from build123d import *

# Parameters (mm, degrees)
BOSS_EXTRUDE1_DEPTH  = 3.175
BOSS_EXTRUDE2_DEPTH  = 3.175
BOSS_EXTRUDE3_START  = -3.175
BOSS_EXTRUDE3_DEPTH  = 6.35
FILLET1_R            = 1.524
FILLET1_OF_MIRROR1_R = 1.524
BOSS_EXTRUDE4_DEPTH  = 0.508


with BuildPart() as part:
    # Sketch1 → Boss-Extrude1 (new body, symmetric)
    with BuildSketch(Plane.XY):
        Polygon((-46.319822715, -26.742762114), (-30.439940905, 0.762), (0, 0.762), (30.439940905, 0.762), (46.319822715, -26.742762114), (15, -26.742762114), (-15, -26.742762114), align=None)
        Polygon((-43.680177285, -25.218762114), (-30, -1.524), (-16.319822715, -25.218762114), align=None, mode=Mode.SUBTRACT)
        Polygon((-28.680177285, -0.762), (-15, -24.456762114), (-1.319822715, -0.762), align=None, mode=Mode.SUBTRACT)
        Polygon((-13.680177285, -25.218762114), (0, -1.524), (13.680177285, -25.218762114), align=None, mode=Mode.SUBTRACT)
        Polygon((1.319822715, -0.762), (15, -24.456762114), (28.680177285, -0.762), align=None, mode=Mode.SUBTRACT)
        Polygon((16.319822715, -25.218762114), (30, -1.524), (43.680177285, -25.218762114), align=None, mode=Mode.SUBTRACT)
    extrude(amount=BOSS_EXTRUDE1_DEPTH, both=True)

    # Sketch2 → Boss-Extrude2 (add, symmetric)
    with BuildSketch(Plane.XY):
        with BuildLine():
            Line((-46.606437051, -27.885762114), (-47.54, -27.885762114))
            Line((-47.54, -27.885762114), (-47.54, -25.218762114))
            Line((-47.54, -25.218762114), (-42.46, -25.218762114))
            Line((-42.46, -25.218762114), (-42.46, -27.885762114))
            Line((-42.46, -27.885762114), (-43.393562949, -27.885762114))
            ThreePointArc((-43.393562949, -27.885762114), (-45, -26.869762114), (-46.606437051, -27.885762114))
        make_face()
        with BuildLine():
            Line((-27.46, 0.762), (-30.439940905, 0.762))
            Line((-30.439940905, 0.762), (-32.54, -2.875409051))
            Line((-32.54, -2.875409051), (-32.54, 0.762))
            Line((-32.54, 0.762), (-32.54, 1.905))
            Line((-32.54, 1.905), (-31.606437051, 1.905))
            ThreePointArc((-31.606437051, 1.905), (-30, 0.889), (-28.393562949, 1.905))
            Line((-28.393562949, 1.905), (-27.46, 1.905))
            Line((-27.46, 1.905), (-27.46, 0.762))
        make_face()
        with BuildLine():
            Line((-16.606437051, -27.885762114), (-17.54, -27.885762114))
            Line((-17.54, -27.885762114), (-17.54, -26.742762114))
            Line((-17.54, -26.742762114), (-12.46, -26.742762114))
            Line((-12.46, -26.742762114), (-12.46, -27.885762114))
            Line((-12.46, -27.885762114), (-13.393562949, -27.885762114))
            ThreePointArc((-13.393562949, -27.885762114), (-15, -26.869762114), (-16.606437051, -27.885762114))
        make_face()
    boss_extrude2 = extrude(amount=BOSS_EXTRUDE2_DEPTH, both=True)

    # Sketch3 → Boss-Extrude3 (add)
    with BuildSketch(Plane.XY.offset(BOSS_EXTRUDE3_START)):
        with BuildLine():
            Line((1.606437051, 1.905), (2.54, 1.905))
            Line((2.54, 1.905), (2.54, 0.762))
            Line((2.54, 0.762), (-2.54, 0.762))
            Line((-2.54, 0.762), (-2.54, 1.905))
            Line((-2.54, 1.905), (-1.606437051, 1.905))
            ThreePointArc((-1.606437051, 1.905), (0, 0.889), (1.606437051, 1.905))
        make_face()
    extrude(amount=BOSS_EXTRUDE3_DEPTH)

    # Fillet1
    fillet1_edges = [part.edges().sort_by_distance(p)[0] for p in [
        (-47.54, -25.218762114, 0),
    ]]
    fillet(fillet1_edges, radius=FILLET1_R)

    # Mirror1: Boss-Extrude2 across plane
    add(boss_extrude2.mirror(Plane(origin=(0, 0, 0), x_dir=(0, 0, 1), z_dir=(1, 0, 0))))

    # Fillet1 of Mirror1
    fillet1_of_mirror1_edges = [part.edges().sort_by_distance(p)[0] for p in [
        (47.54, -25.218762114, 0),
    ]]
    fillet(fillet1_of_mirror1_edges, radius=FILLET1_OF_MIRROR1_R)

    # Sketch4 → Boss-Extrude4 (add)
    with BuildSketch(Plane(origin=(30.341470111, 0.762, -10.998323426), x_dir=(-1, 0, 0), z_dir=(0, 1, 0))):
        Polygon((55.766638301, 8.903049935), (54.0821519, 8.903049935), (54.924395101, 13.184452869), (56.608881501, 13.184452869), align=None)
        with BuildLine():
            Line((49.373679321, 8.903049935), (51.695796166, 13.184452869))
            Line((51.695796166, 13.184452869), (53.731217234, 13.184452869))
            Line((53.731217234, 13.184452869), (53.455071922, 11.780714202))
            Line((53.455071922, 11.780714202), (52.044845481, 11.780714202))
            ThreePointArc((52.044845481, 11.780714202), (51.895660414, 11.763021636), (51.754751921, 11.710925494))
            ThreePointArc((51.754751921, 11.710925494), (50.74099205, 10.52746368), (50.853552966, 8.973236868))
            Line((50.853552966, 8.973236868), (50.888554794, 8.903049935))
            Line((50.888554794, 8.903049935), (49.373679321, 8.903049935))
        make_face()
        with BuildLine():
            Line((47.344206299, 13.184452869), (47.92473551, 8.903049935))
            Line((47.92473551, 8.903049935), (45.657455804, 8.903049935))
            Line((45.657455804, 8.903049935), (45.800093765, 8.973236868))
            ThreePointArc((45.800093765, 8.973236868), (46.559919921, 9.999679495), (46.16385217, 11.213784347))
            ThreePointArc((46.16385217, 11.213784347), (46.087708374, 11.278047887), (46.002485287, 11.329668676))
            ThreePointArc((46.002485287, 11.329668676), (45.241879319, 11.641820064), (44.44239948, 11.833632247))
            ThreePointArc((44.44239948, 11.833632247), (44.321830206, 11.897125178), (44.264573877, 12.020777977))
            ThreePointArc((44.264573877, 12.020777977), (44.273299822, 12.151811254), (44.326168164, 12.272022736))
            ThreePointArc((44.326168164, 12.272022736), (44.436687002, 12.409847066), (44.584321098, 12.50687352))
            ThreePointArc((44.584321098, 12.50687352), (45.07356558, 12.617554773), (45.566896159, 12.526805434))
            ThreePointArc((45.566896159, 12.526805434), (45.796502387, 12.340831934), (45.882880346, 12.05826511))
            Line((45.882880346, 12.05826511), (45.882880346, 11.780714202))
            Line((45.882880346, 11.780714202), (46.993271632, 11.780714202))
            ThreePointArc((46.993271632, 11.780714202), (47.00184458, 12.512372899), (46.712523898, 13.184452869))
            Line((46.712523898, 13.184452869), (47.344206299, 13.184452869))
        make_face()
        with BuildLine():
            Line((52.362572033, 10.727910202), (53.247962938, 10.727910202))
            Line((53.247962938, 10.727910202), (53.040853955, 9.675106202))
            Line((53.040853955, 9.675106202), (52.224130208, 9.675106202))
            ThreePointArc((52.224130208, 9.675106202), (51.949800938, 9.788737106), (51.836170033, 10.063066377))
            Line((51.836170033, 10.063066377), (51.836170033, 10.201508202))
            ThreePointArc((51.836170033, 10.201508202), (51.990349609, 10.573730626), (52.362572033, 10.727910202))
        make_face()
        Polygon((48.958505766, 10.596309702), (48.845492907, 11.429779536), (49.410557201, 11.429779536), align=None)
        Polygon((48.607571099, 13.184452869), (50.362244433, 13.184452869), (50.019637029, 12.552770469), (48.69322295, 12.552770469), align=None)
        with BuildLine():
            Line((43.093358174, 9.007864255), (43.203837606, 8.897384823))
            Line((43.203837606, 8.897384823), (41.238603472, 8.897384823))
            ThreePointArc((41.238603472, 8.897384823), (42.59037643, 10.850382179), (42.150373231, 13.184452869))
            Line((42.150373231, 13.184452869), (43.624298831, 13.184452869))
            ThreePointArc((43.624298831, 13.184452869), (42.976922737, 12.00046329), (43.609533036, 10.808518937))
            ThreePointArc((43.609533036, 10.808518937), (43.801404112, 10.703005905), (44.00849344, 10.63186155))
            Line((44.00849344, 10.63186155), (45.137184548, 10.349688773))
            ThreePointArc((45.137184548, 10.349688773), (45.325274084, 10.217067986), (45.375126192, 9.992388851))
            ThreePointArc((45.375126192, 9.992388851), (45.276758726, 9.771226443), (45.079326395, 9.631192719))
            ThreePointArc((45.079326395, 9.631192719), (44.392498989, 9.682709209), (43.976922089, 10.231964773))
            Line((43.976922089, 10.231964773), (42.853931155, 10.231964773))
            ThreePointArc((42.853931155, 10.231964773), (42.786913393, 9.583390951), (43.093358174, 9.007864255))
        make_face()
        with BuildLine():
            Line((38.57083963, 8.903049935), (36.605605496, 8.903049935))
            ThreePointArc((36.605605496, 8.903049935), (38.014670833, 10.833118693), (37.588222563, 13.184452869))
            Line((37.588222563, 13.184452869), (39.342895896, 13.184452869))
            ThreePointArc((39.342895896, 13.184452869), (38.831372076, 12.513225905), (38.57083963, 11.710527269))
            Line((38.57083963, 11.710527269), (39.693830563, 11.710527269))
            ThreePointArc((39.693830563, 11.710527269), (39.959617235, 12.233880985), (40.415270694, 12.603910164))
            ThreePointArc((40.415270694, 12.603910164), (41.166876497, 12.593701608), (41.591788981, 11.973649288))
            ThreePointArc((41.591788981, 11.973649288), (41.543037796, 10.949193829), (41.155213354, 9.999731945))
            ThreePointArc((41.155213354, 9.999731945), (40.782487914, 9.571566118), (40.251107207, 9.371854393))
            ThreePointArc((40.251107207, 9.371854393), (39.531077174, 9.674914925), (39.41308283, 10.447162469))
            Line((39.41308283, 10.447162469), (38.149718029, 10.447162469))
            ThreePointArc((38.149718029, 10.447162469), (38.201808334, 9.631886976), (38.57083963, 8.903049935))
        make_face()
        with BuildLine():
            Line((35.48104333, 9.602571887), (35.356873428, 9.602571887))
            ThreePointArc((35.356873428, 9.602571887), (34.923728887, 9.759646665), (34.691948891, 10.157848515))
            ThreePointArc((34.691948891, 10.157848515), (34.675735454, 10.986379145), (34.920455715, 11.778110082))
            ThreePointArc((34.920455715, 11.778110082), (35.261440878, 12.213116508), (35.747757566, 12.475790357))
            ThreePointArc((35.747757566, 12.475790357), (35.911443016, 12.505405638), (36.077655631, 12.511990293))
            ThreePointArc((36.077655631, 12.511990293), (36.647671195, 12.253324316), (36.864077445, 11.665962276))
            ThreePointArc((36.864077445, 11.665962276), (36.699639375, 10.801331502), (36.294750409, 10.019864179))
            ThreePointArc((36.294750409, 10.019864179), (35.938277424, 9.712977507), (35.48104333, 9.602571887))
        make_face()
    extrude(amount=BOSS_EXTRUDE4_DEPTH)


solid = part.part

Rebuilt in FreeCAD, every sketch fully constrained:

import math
import FreeCAD as App
import Part
import Sketcher
Q = App.Units.Quantity


def edges_at(feature, points):
    """Names of the edges that pass closest to the given points."""
    edges = feature.Shape.Edges
    near = lambda p: min(range(len(edges)), key=lambda i: edges[i].distToShape(Part.Vertex(*p))[0])
    return sorted({f"Edge{near(p) + 1}" for p in points})

doc = App.newDocument("Part")
body = doc.addObject("PartDesign::Body", "Body")

# Sketch on XY plane
sketch1 = body.newObject("Sketcher::SketchObject", "Sketch")
sketch1.AttachmentSupport = (doc.getObject("XY_Plane"), [""])
sketch1.MapMode = "FlatFace"
sketch1.addGeometry([
    Part.LineSegment(App.Vector(-30.439941, 0.762, 0), App.Vector(-46.319823, -26.742762, 0)),  # 0
    Part.LineSegment(App.Vector(-46.319823, -26.742762, 0), App.Vector(46.319823, -26.742762, 0)),  # 1
    Part.LineSegment(App.Vector(46.319823, -26.742762, 0), App.Vector(30.439941, 0.762, 0)),  # 2
    Part.LineSegment(App.Vector(30.439941, 0.762, 0), App.Vector(-30.439941, 0.762, 0)),  # 3
    Part.LineSegment(App.Vector(16.319823, -25.218762, 0), App.Vector(30, -1.524, 0)),  # 4
    Part.LineSegment(App.Vector(30, -1.524, 0), App.Vector(43.680177, -25.218762, 0)),  # 5
    Part.LineSegment(App.Vector(43.680177, -25.218762, 0), App.Vector(16.319823, -25.218762, 0)),  # 6
    Part.LineSegment(App.Vector(-13.680177, -25.218762, 0), App.Vector(0, -1.524, 0)),  # 7
    Part.LineSegment(App.Vector(0, -1.524, 0), App.Vector(13.680177, -25.218762, 0)),  # 8
    Part.LineSegment(App.Vector(13.680177, -25.218762, 0), App.Vector(-13.680177, -25.218762, 0)),  # 9
    Part.LineSegment(App.Vector(-43.680177, -25.218762, 0), App.Vector(-30, -1.524, 0)),  # 10
    Part.LineSegment(App.Vector(-30, -1.524, 0), App.Vector(-16.319823, -25.218762, 0)),  # 11
    Part.LineSegment(App.Vector(-16.319823, -25.218762, 0), App.Vector(-43.680177, -25.218762, 0)),  # 12
    Part.LineSegment(App.Vector(1.319823, -0.762, 0), App.Vector(28.680177, -0.762, 0)),  # 13
    Part.LineSegment(App.Vector(28.680177, -0.762, 0), App.Vector(15, -24.456762, 0)),  # 14
    Part.LineSegment(App.Vector(15, -24.456762, 0), App.Vector(1.319823, -0.762, 0)),  # 15
    Part.LineSegment(App.Vector(-28.680177, -0.762, 0), App.Vector(-1.319823, -0.762, 0)),  # 16
    Part.LineSegment(App.Vector(-1.319823, -0.762, 0), App.Vector(-15, -24.456762, 0)),  # 17
    Part.LineSegment(App.Vector(-15, -24.456762, 0), App.Vector(-28.680177, -0.762, 0)),  # 18
], False)
sketch1.addConstraint([
    Sketcher.Constraint("Coincident", 0, 2, 1, 1),
    Sketcher.Constraint("Coincident", 1, 2, 2, 1),
    Sketcher.Constraint("Coincident", 2, 2, 3, 1),
    Sketcher.Constraint("Coincident", 3, 2, 0, 1),
    Sketcher.Constraint("Coincident", 4, 2, 5, 1),
    Sketcher.Constraint("Coincident", 5, 2, 6, 1),
    Sketcher.Constraint("Coincident", 6, 2, 4, 1),
    Sketcher.Constraint("Coincident", 7, 2, 8, 1),
    Sketcher.Constraint("Coincident", 8, 2, 9, 1),
    Sketcher.Constraint("Coincident", 9, 2, 7, 1),
    Sketcher.Constraint("Coincident", 10, 2, 11, 1),
    Sketcher.Constraint("Coincident", 11, 2, 12, 1),
    Sketcher.Constraint("Coincident", 12, 2, 10, 1),
    Sketcher.Constraint("Coincident", 13, 2, 14, 1),
    Sketcher.Constraint("Coincident", 14, 2, 15, 1),
    Sketcher.Constraint("Coincident", 15, 2, 13, 1),
    Sketcher.Constraint("Coincident", 16, 2, 17, 1),
    Sketcher.Constraint("Coincident", 17, 2, 18, 1),
    Sketcher.Constraint("Coincident", 18, 2, 16, 1),
    Sketcher.Constraint("Horizontal", 1),
    Sketcher.Constraint("Horizontal", 3),
    Sketcher.Constraint("Horizontal", 6),
    Sketcher.Constraint("Horizontal", 9),
    Sketcher.Constraint("Horizontal", 12),
    Sketcher.Constraint("Horizontal", 13),
    Sketcher.Constraint("Horizontal", 16),
    Sketcher.Constraint("Symmetric", 4, 2, 10, 2, -2),
    Sketcher.Constraint("Symmetric", 6, 2, 11, 2, -2),
    Sketcher.Constraint("Symmetric", 15, 2, 16, 2, -2),
    Sketcher.Constraint("Symmetric", 14, 2, 17, 2, -2),
    Sketcher.Constraint("PointOnObject", 7, 2, -2),
    Sketcher.Constraint("Parallel", 0, 4),
    Sketcher.Constraint("Parallel", 2, 5),
    Sketcher.Constraint("Parallel", 4, 7),
    Sketcher.Constraint("Parallel", 5, 8),
    Sketcher.Constraint("Parallel", 7, 10),
    Sketcher.Constraint("Parallel", 8, 11),
    Sketcher.Constraint("Parallel", 10, 14),
    Sketcher.Constraint("Parallel", 11, 15),
    Sketcher.Constraint("Parallel", 15, 18),
    Sketcher.Constraint("Horizontal", 4, 2, 7, 2),
    Sketcher.Constraint("Horizontal", 6, 2, 8, 2),
    Sketcher.Constraint("Equal", 12, 13),
    Sketcher.Constraint("Angle", 0, Q("-120 deg")),
    Sketcher.Constraint("DistanceY", -1, 1, 2, 2, Q("0.03 in")),
    Sketcher.Constraint("DistanceY", 4, 2, -1, 1, Q("0.06 in")),
    Sketcher.Constraint("DistanceY", 13, 2, -1, 1, Q("0.03 in")),
    Sketcher.Constraint("DistanceY", 1, 2, 5, 2, Q("0.06 in")),
    Sketcher.Constraint("DistanceX", 3, 2, 3, 1, 60.879882),
    Sketcher.Constraint("DistanceX", -1, 1, 4, 2, 30.0),
    Sketcher.Constraint("DistanceX", -1, 1, 14, 2, 15.0),
    Sketcher.Constraint("DistanceX", 0, 2, 5, 2, 90.0),
    Sketcher.Constraint("DistanceX", 6, 2, 1, 2, 30.0),
])
pad1 = body.newObject("PartDesign::Pad", "Pad")
pad1.Profile = sketch1
pad1.Length = Q("0.25 in")
pad1.Midplane = True

# Sketch on XY plane
sketch2 = body.newObject("Sketcher::SketchObject", "Sketch001")
sketch2.AttachmentSupport = (doc.getObject("XY_Plane"), [""])
sketch2.MapMode = "FlatFace"
sketch2.addGeometry([
    Part.LineSegment(App.Vector(-47.54, -27.885762, 0), App.Vector(-46.606437, -27.885762, 0)),  # 0
    Part.ArcOfCircle(Part.Circle(App.Vector(-45, -28.647762, 0), App.Vector(0, 0, 1), 1.778), math.radians(25.376934), math.radians(154.623066)),  # 1
    Part.LineSegment(App.Vector(-43.393563, -27.885762, 0), App.Vector(-42.46, -27.885762, 0)),  # 2
    Part.LineSegment(App.Vector(-42.46, -27.885762, 0), App.Vector(-42.46, -25.218762, 0)),  # 3
    Part.LineSegment(App.Vector(-42.46, -25.218762, 0), App.Vector(-47.54, -25.218762, 0)),  # 4
    Part.LineSegment(App.Vector(-47.54, -25.218762, 0), App.Vector(-47.54, -27.885762, 0)),  # 5
    Part.LineSegment(App.Vector(-30.439941, 0.762, 0), App.Vector(-27.46, 0.762, 0)),  # 6
    Part.LineSegment(App.Vector(-27.46, 0.762, 0), App.Vector(-27.46, 1.905, 0)),  # 7
    Part.LineSegment(App.Vector(-27.46, 1.905, 0), App.Vector(-28.393563, 1.905, 0)),  # 8
    Part.ArcOfCircle(Part.Circle(App.Vector(-30, 2.667, 0), App.Vector(0, 0, 1), 1.778), math.radians(-154.623066), math.radians(-25.376934)),  # 9
    Part.LineSegment(App.Vector(-31.606437, 1.905, 0), App.Vector(-32.54, 1.905, 0)),  # 10
    Part.LineSegment(App.Vector(-32.54, 1.905, 0), App.Vector(-32.54, -2.875409, 0)),  # 11
    Part.LineSegment(App.Vector(-32.54, -2.875409, 0), App.Vector(-30.439941, 0.762, 0)),  # 12
    Part.LineSegment(App.Vector(-17.54, -27.885762, 0), App.Vector(-16.606437, -27.885762, 0)),  # 13
    Part.ArcOfCircle(Part.Circle(App.Vector(-15, -28.647762, 0), App.Vector(0, 0, 1), 1.778), math.radians(25.376934), math.radians(154.623066)),  # 14
    Part.LineSegment(App.Vector(-13.393563, -27.885762, 0), App.Vector(-12.46, -27.885762, 0)),  # 15
    Part.LineSegment(App.Vector(-12.46, -27.885762, 0), App.Vector(-12.46, -26.742762, 0)),  # 16
    Part.LineSegment(App.Vector(-12.46, -26.742762, 0), App.Vector(-17.54, -26.742762, 0)),  # 17
    Part.LineSegment(App.Vector(-17.54, -26.742762, 0), App.Vector(-17.54, -27.885762, 0)),  # 18
], False)
sketch2.addConstraint([
    Sketcher.Constraint("Coincident", 0, 2, 1, 2),
    Sketcher.Constraint("Coincident", 1, 1, 2, 1),
    Sketcher.Constraint("Coincident", 2, 2, 3, 1),
    Sketcher.Constraint("Coincident", 3, 2, 4, 1),
    Sketcher.Constraint("Coincident", 4, 2, 5, 1),
    Sketcher.Constraint("Coincident", 5, 2, 0, 1),
    Sketcher.Constraint("Coincident", 6, 2, 7, 1),
    Sketcher.Constraint("Coincident", 7, 2, 8, 1),
    Sketcher.Constraint("Coincident", 8, 2, 9, 2),
    Sketcher.Constraint("Coincident", 9, 1, 10, 1),
    Sketcher.Constraint("Coincident", 10, 2, 11, 1),
    Sketcher.Constraint("Coincident", 11, 2, 12, 1),
    Sketcher.Constraint("Coincident", 12, 2, 6, 1),
    Sketcher.Constraint("Coincident", 13, 2, 14, 2),
    Sketcher.Constraint("Coincident", 14, 1, 15, 1),
    Sketcher.Constraint("Coincident", 15, 2, 16, 1),
    Sketcher.Constraint("Coincident", 16, 2, 17, 1),
    Sketcher.Constraint("Coincident", 17, 2, 18, 1),
    Sketcher.Constraint("Coincident", 18, 2, 13, 1),
    Sketcher.Constraint("Horizontal", 0),
    Sketcher.Constraint("Horizontal", 2),
    Sketcher.Constraint("Vertical", 3),
    Sketcher.Constraint("Horizontal", 4),
    Sketcher.Constraint("Vertical", 5),
    Sketcher.Constraint("Horizontal", 6),
    Sketcher.Constraint("Vertical", 7),
    Sketcher.Constraint("Horizontal", 8),
    Sketcher.Constraint("Horizontal", 10),
    Sketcher.Constraint("Vertical", 11),
    Sketcher.Constraint("Horizontal", 13),
    Sketcher.Constraint("Horizontal", 15),
    Sketcher.Constraint("Vertical", 16),
    Sketcher.Constraint("Horizontal", 17),
    Sketcher.Constraint("Vertical", 18),
    Sketcher.Constraint("Equal", 1, 9),
    Sketcher.Constraint("Equal", 9, 14),
    Sketcher.Constraint("Horizontal", 1, 3, 14, 3),
    Sketcher.Constraint("Horizontal", 0, 2, 1, 1),
    Sketcher.Constraint("Horizontal", 8, 2, 9, 1),
    Sketcher.Constraint("Horizontal", 5, 2, 13, 2),
    Sketcher.Constraint("Horizontal", 13, 2, 14, 1),
    Sketcher.Constraint("Equal", 0, 2),
    Sketcher.Constraint("Equal", 2, 8),
    Sketcher.Constraint("Equal", 8, 10),
    Sketcher.Constraint("Equal", 10, 13),
    Sketcher.Constraint("Equal", 13, 15),
    Sketcher.Constraint("Equal", 7, 16),
    Sketcher.Constraint("Radius", 1, Q("0.07 in")),
    Sketcher.Constraint("DistanceX", 4, 2, 4, 1, Q("0.2 in")),
    Sketcher.Constraint("Angle", 12, Q("60 deg")),
    Sketcher.Constraint("DistanceX", 9, 3, 6, 2, Q("0.1 in")),
    Sketcher.Constraint("DistanceY", 3, 1, 3, 2, Q("0.105 in")),
    Sketcher.Constraint("DistanceY", 7, 1, 7, 2, Q("0.045 in")),
    Sketcher.Constraint("DistanceY", -1, 1, 6, 2, Q("0.03 in")),
    Sketcher.Constraint("DistanceY", 1, 3, 0, 2, Q("0.03 in")),
    Sketcher.Constraint("DistanceX", 6, 1, 6, 2, 2.979941),
    Sketcher.Constraint("DistanceX", 1, 3, -1, 1, 45.0),
    Sketcher.Constraint("DistanceX", 9, 3, -1, 1, 30.0),
    Sketcher.Constraint("DistanceX", 14, 3, -1, 1, 15.0),
    Sketcher.Constraint("DistanceY", 1, 3, -1, 1, 28.647762),
])
pad2 = body.newObject("PartDesign::Pad", "Pad001")
pad2.Profile = sketch2
pad2.Length = Q("0.25 in")
pad2.Midplane = True

# Sketch on XY plane
sketch3 = body.newObject("Sketcher::SketchObject", "Sketch002")
sketch3.AttachmentSupport = (doc.getObject("XY_Plane"), [""])
sketch3.MapMode = "FlatFace"
sketch3.AttachmentOffset = App.Placement(App.Vector(0, 0, -0.125 * 25.4), App.Rotation())
sketch3.addGeometry([
    Part.LineSegment(App.Vector(2.54, 1.905, 0), App.Vector(1.606437, 1.905, 0)),  # 0
    Part.ArcOfCircle(Part.Circle(App.Vector(0, 2.667, 0), App.Vector(0, 0, 1), 1.778), math.radians(-154.623066), math.radians(-25.376934)),  # 1
    Part.LineSegment(App.Vector(-1.606437, 1.905, 0), App.Vector(-2.54, 1.905, 0)),  # 2
    Part.LineSegment(App.Vector(-2.54, 1.905, 0), App.Vector(-2.54, 0.762, 0)),  # 3
    Part.LineSegment(App.Vector(-2.54, 0.762, 0), App.Vector(2.54, 0.762, 0)),  # 4
    Part.LineSegment(App.Vector(2.54, 0.762, 0), App.Vector(2.54, 1.905, 0)),  # 5
], False)
sketch3.addConstraint([
    Sketcher.Constraint("Coincident", 0, 2, 1, 2),
    Sketcher.Constraint("Coincident", 1, 1, 2, 1),
    Sketcher.Constraint("Coincident", 2, 2, 3, 1),
    Sketcher.Constraint("Coincident", 3, 2, 4, 1),
    Sketcher.Constraint("Coincident", 4, 2, 5, 1),
    Sketcher.Constraint("Coincident", 5, 2, 0, 1),
    Sketcher.Constraint("Horizontal", 0),
    Sketcher.Constraint("Horizontal", 2),
    Sketcher.Constraint("Vertical", 3),
    Sketcher.Constraint("Horizontal", 4),
    Sketcher.Constraint("Vertical", 5),
    Sketcher.Constraint("Symmetric", 0, 2, 1, 1, -2),
    Sketcher.Constraint("Equal", 0, 2),
    Sketcher.Constraint("Radius", 1, Q("0.07 in")),
    Sketcher.Constraint("DistanceX", 4, 1, 4, 2, Q("0.2 in")),
    Sketcher.Constraint("DistanceY", 3, 2, 3, 1, Q("0.045 in")),
    Sketcher.Constraint("DistanceY", -1, 1, 3, 2, Q("0.03 in")),
    Sketcher.Constraint("DistanceY", 0, 2, 1, 3, Q("0.03 in")),
])
pad3 = body.newObject("PartDesign::Pad", "Pad002")
pad3.Profile = sketch3
pad3.Length = Q("0.25 in")
doc.recompute()

fillet = body.newObject("PartDesign::Fillet", "Fillet")
fillet.Base = (pad3, edges_at(pad3, [(-47.54, -25.219, 0)]))
fillet.Radius = Q("0.06 in")
doc.recompute()

mirrored = body.newObject("PartDesign::Mirrored", "Mirrored")
mirrored.Originals = [pad2]
mirrored.MirrorPlane = (doc.getObject("YZ_Plane"), [""])
body.Tip = mirrored
doc.recompute()

fillet2 = body.newObject("PartDesign::Fillet", "Fillet001")
fillet2.Base = (mirrored, edges_at(mirrored, [(47.54, -25.219, 0)]))
fillet2.Radius = Q("0.06 in")

# Sketch on XZ plane
sketch4 = body.newObject("Sketcher::SketchObject", "Sketch003")
sketch4.AttachmentSupport = (doc.getObject("XZ_Plane"), [""])
sketch4.MapMode = "FlatFace"
sketch4.AttachmentOffset = App.Placement(App.Vector(0, 0, -0.03 * 25.4), App.Rotation())
sketch4.addGeometry([
    Part.LineSegment(App.Vector(-23.740682, -2.095273, 0), App.Vector(-25.425168, -2.095273, 0)),  # 0
    Part.LineSegment(App.Vector(-25.425168, -2.095273, 0), App.Vector(-26.267411, 2.186129, 0)),  # 1
    Part.LineSegment(App.Vector(-26.267411, 2.186129, 0), App.Vector(-24.582925, 2.186129, 0)),  # 2
    Part.LineSegment(App.Vector(-24.582925, 2.186129, 0), App.Vector(-23.740682, -2.095273, 0)),  # 3
    Part.LineSegment(App.Vector(-21.354326, 2.186129, 0), App.Vector(-19.032209, -2.095273, 0)),  # 4
    Part.LineSegment(App.Vector(-19.032209, -2.095273, 0), App.Vector(-20.547085, -2.095273, 0)),  # 5
    Part.LineSegment(App.Vector(-20.547085, -2.095273, 0), App.Vector(-20.512083, -2.025087, 0)),  # 6
    Part.ArcOfCircle(Part.Circle(App.Vector(-22.344691, -1.111175, 0), App.Vector(0, 0, 1), 2.047849), math.radians(-26.505174), math.radians(62.946445)),  # 7
    Part.ArcOfCircle(Part.Circle(App.Vector(-21.703375, 0.144575, 0), App.Vector(0, 0, 1), 0.637816), math.radians(62.946445), math.radians(90)),  # 8
    Part.LineSegment(App.Vector(-21.703375, 0.782391, 0), App.Vector(-23.113602, 0.782391, 0)),  # 9
    Part.LineSegment(App.Vector(-23.113602, 0.782391, 0), App.Vector(-23.389747, 2.186129, 0)),  # 10
    Part.LineSegment(App.Vector(-23.389747, 2.186129, 0), App.Vector(-21.354326, 2.186129, 0)),  # 11
    Part.LineSegment(App.Vector(-17.583265, -2.095273, 0), App.Vector(-17.002736, 2.186129, 0)),  # 12
    Part.LineSegment(App.Vector(-17.002736, 2.186129, 0), App.Vector(-16.371054, 2.186129, 0)),  # 13
    Part.ArcOfCircle(Part.Circle(App.Vector(-14.932222, 1.168419, 0), App.Vector(0, 0, 1), 1.762377), math.radians(144.727578), math.radians(192.652557)),  # 14
    Part.LineSegment(App.Vector(-16.651802, 0.782391, 0), App.Vector(-15.54141, 0.782391, 0)),  # 15
    Part.LineSegment(App.Vector(-15.54141, 0.782391, 0), App.Vector(-15.54141, 1.059942, 0)),  # 16
    Part.ArcOfCircle(Part.Circle(App.Vector(-15.036043, 1.059942, 0), App.Vector(0, 0, 1), 0.505367), math.radians(112.008448), math.radians(180)),  # 17
    Part.ArcOfCircle(Part.Circle(App.Vector(-14.757424, 0.370628, 0), App.Vector(0, 0, 1), 1.248861), math.radians(65.667337), math.radians(112.008448)),  # 18
    Part.ArcOfCircle(Part.Circle(App.Vector(-14.476007, 0.992952, 0), App.Vector(0, 0, 1), 0.565865), math.radians(29.744881), math.radians(65.667337)),  # 19
    Part.ArcOfCircle(Part.Circle(App.Vector(-14.300367, 1.063139, 0), App.Vector(0, 0, 1), 0.379451), math.radians(-6.154974), math.radians(33.704494)),  # 20
    Part.ArcOfCircle(Part.Circle(App.Vector(-14.134484, 1.04525, 0), App.Vector(0, 0, 1), 0.212605), math.radians(-80.919383), math.radians(-6.154974)),  # 21
    Part.ArcOfCircle(Part.Circle(App.Vector(-13.257336, -4.442853, 0), App.Vector(0, 0, 1), 5.345152), math.radians(99.080617), math.radians(116.724011)),  # 22
    Part.ArcOfCircle(Part.Circle(App.Vector(-15.374193, -0.238341, 0), App.Vector(0, 0, 1), 0.637816), math.radians(116.724012), math.radians(134.643415)),  # 23
    Part.ArcOfCircle(Part.Circle(App.Vector(-14.843725, -0.775454, 0), App.Vector(0, 0, 1), 1.392725), math.radians(134.643416), math.radians(243.799885)),  # 24
    Part.LineSegment(App.Vector(-15.458624, -2.025087, 0), App.Vector(-15.315986, -2.095273, 0)),  # 25
    Part.LineSegment(App.Vector(-15.315986, -2.095273, 0), App.Vector(-17.583265, -2.095273, 0)),  # 26
    Part.LineSegment(App.Vector(-22.906493, -0.270413, 0), App.Vector(-22.021102, -0.270413, 0)),  # 27
    Part.ArcOfCircle(Part.Circle(App.Vector(-22.021102, -0.796815, 0), App.Vector(0, 0, 1), 0.526402), math.radians(0), math.radians(90)),  # 28
    Part.LineSegment(App.Vector(-21.4947, -0.796815, 0), App.Vector(-21.4947, -0.935257, 0)),  # 29
    Part.ArcOfCircle(Part.Circle(App.Vector(-21.88266, -0.935257, 0), App.Vector(0, 0, 1), 0.38796), math.radians(-90), math.radians(0)),  # 30
    Part.LineSegment(App.Vector(-21.88266, -1.323217, 0), App.Vector(-22.699384, -1.323217, 0)),  # 31
    Part.LineSegment(App.Vector(-22.699384, -1.323217, 0), App.Vector(-22.906493, -0.270413, 0)),  # 32
    Part.LineSegment(App.Vector(-18.504023, 0.431456, 0), App.Vector(-18.617036, -0.402014, 0)),  # 33
    Part.LineSegment(App.Vector(-18.617036, -0.402014, 0), App.Vector(-19.069087, 0.431456, 0)),  # 34
    Part.LineSegment(App.Vector(-19.069087, 0.431456, 0), App.Vector(-18.504023, 0.431456, 0)),  # 35
    Part.LineSegment(App.Vector(-20.020774, 2.186129, 0), App.Vector(-18.266101, 2.186129, 0)),  # 36
    Part.LineSegment(App.Vector(-18.266101, 2.186129, 0), App.Vector(-18.351753, 1.554447, 0)),  # 37
    Part.LineSegment(App.Vector(-18.351753, 1.554447, 0), App.Vector(-19.678167, 1.554447, 0)),  # 38
    Part.LineSegment(App.Vector(-19.678167, 1.554447, 0), App.Vector(-20.020774, 2.186129, 0)),  # 39
    Part.LineSegment(App.Vector(-12.862367, -2.100939, 0), App.Vector(-12.751888, -1.990459, 0)),  # 40
    Part.ArcOfCircle(Part.Circle(App.Vector(-13.541869, -1.200478, 0), App.Vector(0, 0, 1), 1.117202), math.radians(-45), math.radians(22.865988)),  # 41
    Part.LineSegment(App.Vector(-12.512461, -0.766359, 0), App.Vector(-13.635452, -0.766359, 0)),  # 42
    Part.ArcOfCircle(Part.Circle(App.Vector(-14.451493, -0.580772, 0), App.Vector(0, 0, 1), 0.836878), math.radians(-110.009807), math.radians(-12.812494)),  # 43
    Part.ArcOfCircle(Part.Circle(App.Vector(-14.581287, -0.937189, 0), App.Vector(0, 0, 1), 0.457563), math.radians(-171.359007), math.radians(-110.009807)),  # 44
    Part.ArcOfCircle(Part.Circle(App.Vector(-14.718368, -0.958021, 0), App.Vector(0, 0, 1), 0.318908), math.radians(104.036243), math.radians(188.640993)),  # 45
    Part.LineSegment(App.Vector(-14.795714, -0.648635, 0), App.Vector(-13.667023, -0.366462, 0)),  # 46
    Part.ArcOfCircle(Part.Circle(App.Vector(-13.97641, 0.871083, 0), App.Vector(0, 0, 1), 1.275632), math.radians(-75.963757), math.radians(-56.269266)),  # 47
    Part.ArcOfCircle(Part.Circle(App.Vector(-14.058012, 0.993299, 0), App.Vector(0, 0, 1), 1.422587), math.radians(-56.269266), math.radians(56.981413)),  # 48
    Part.LineSegment(App.Vector(-13.282829, 2.186129, 0), App.Vector(-11.808903, 2.186129, 0)),  # 49
    Part.ArcOfCircle(Part.Circle(App.Vector(-9.236614, 0.49271, 0), App.Vector(0, 0, 1), 3.079665), math.radians(146.641829), math.radians(237.371605)),  # 50
    Part.LineSegment(App.Vector(-10.897133, -2.100939, 0), App.Vector(-12.862367, -2.100939, 0)),  # 51
    Part.LineSegment(App.Vector(-6.264135, -2.095273, 0), App.Vector(-8.22937, -2.095273, 0)),  # 52
    Part.ArcOfCircle(Part.Circle(App.Vector(-9.820273, -0.831909, 0), App.Vector(0, 0, 1), 2.031518), math.radians(-38.453709), math.radians(7.943472)),  # 53
    Part.LineSegment(App.Vector(-7.808248, -0.551161, 0), App.Vector(-9.071613, -0.551161, 0)),  # 54
    Part.ArcOfCircle(Part.Circle(App.Vector(-9.820273, -0.831909, 0), App.Vector(0, 0, 1), 0.79957), math.radians(-96.417058), math.radians(20.556045)),  # 55
    Part.ArcOfCircle(Part.Circle(App.Vector(-9.780148, -0.475145, 0), App.Vector(0, 0, 1), 1.158583), math.radians(-153.140833), math.radians(-96.417058)),  # 56
    Part.ArcOfCircle(Part.Circle(App.Vector(-8.244006, 0.605001, 0), App.Vector(0, 0, 1), 3.029036), math.radians(172.977541), math.radians(211.965387)),  # 57
    Part.ArcOfCircle(Part.Circle(App.Vector(-10.439756, 0.875479, 0), App.Vector(0, 0, 1), 0.816689), math.radians(63.378369), math.radians(172.977541)),  # 58
    Part.ArcOfCircle(Part.Circle(App.Vector(-10.716526, 0.348576, 0), App.Vector(0, 0, 1), 1.411797), math.radians(14.925561), math.radians(62.918785)),  # 59
    Part.LineSegment(App.Vector(-9.35236, 0.712204, 0), App.Vector(-8.22937, 0.712204, 0)),  # 60
    Part.ArcOfCircle(Part.Circle(App.Vector(-10.716526, 0.348576, 0), App.Vector(0, 0, 1), 2.513597), math.radians(8.317846), math.radians(46.974104)),  # 61
    Part.LineSegment(App.Vector(-9.001426, 2.186129, 0), App.Vector(-7.246752, 2.186129, 0)),  # 62
    Part.ArcOfCircle(Part.Circle(App.Vector(-4.71769, 0.513109, 0), App.Vector(0, 0, 1), 3.032351), math.radians(146.51465), math.radians(239.337349)),  # 63
    Part.LineSegment(App.Vector(-5.015403, -1.395752, 0), App.Vector(-5.139573, -1.395752, 0)),  # 64
    Part.ArcOfCircle(Part.Circle(App.Vector(-5.139573, -0.393754, 0), App.Vector(0, 0, 1), 1.001998), math.radians(-144.300101), math.radians(-90)),  # 65
    Part.ArcOfCircle(Part.Circle(App.Vector(-3.480809, 0.798185, 0), App.Vector(0, 0, 1), 3.044599), math.radians(-177.542518), math.radians(-144.300101)),  # 66
    Part.ArcOfCircle(Part.Circle(App.Vector(-5.711758, 0.702438, 0), App.Vector(0, 0, 1), 0.811596), math.radians(91.724781), math.radians(182.457482)),  # 67
    Part.ArcOfCircle(Part.Circle(App.Vector(-5.70024, 0.319933, 0), App.Vector(0, 0, 1), 1.194275), math.radians(75.751117), math.radians(91.724781)),  # 68
    Part.ArcOfCircle(Part.Circle(App.Vector(-5.793627, 0.178821, 0), App.Vector(0, 0, 1), 1.35518), math.radians(26.324731), math.radians(73.392052)),  # 69
    Part.ArcOfCircle(Part.Circle(App.Vector(-6.914743, -0.375871, 0), App.Vector(0, 0, 1), 2.606013), math.radians(-10.269674), math.radians(26.324731)),  # 70
    Part.ArcOfCircle(Part.Circle(App.Vector(-5.015403, -0.720001, 0), App.Vector(0, 0, 1), 0.67575), math.radians(-90), math.radians(-10.269674)),  # 71
], False)
sketch4.addConstraint([
    Sketcher.Constraint("Coincident", 0, 2, 1, 1),
    Sketcher.Constraint("Coincident", 1, 2, 2, 1),
    Sketcher.Constraint("Coincident", 2, 2, 3, 1),
    Sketcher.Constraint("Coincident", 3, 2, 0, 1),
    Sketcher.Constraint("Coincident", 4, 2, 5, 1),
    Sketcher.Constraint("Coincident", 5, 2, 6, 1),
    Sketcher.Constraint("Coincident", 6, 2, 7, 1),
    Sketcher.Constraint("Coincident", 7, 2, 8, 1),
    Sketcher.Constraint("Coincident", 8, 2, 9, 1),
    Sketcher.Constraint("Coincident", 9, 2, 10, 1),
    Sketcher.Constraint("Coincident", 10, 2, 11, 1),
    Sketcher.Constraint("Coincident", 11, 2, 4, 1),
    Sketcher.Constraint("Coincident", 12, 2, 13, 1),
    Sketcher.Constraint("Coincident", 13, 2, 14, 1),
    Sketcher.Constraint("Coincident", 14, 2, 15, 1),
    Sketcher.Constraint("Coincident", 15, 2, 16, 1),
    Sketcher.Constraint("Coincident", 16, 2, 17, 2),
    Sketcher.Constraint("Coincident", 17, 1, 18, 2),
    Sketcher.Constraint("Coincident", 18, 1, 19, 2),
    Sketcher.Constraint("Coincident", 19, 1, 20, 2),
    Sketcher.Constraint("Coincident", 20, 1, 21, 2),
    Sketcher.Constraint("Coincident", 21, 1, 22, 1),
    Sketcher.Constraint("Coincident", 22, 2, 23, 1),
    Sketcher.Constraint("Coincident", 23, 2, 24, 1),
    Sketcher.Constraint("Coincident", 24, 2, 25, 1),
    Sketcher.Constraint("Coincident", 25, 2, 26, 1),
    Sketcher.Constraint("Coincident", 26, 2, 12, 1),
    Sketcher.Constraint("Coincident", 27, 2, 28, 2),
    Sketcher.Constraint("Coincident", 28, 1, 29, 1),
    Sketcher.Constraint("Coincident", 29, 2, 30, 2),
    Sketcher.Constraint("Coincident", 30, 1, 31, 1),
    Sketcher.Constraint("Coincident", 31, 2, 32, 1),
    Sketcher.Constraint("Coincident", 32, 2, 27, 1),
    Sketcher.Constraint("Coincident", 33, 2, 34, 1),
    Sketcher.Constraint("Coincident", 34, 2, 35, 1),
    Sketcher.Constraint("Coincident", 35, 2, 33, 1),
    Sketcher.Constraint("Coincident", 36, 2, 37, 1),
    Sketcher.Constraint("Coincident", 37, 2, 38, 1),
    Sketcher.Constraint("Coincident", 38, 2, 39, 1),
    Sketcher.Constraint("Coincident", 39, 2, 36, 1),
    Sketcher.Constraint("Coincident", 40, 2, 41, 1),
    Sketcher.Constraint("Coincident", 41, 2, 42, 1),
    Sketcher.Constraint("Coincident", 42, 2, 43, 2),
    Sketcher.Constraint("Coincident", 43, 1, 44, 2),
    Sketcher.Constraint("Coincident", 44, 1, 45, 2),
    Sketcher.Constraint("Coincident", 45, 1, 46, 1),
    Sketcher.Constraint("Coincident", 46, 2, 47, 1),
    Sketcher.Constraint("Coincident", 47, 2, 48, 1),
    Sketcher.Constraint("Coincident", 48, 2, 49, 1),
    Sketcher.Constraint("Coincident", 49, 2, 50, 1),
    Sketcher.Constraint("Coincident", 50, 2, 51, 1),
    Sketcher.Constraint("Coincident", 51, 2, 40, 1),
    Sketcher.Constraint("Coincident", 52, 2, 53, 1),
    Sketcher.Constraint("Coincident", 53, 2, 54, 1),
    Sketcher.Constraint("Coincident", 54, 2, 55, 2),
    Sketcher.Constraint("Coincident", 55, 1, 56, 2),
    Sketcher.Constraint("Coincident", 56, 1, 57, 2),
    Sketcher.Constraint("Coincident", 57, 1, 58, 2),
    Sketcher.Constraint("Coincident", 58, 1, 59, 2),
    Sketcher.Constraint("Coincident", 59, 1, 60, 1),
    Sketcher.Constraint("Coincident", 60, 2, 61, 1),
    Sketcher.Constraint("Coincident", 61, 2, 62, 1),
    Sketcher.Constraint("Coincident", 62, 2, 63, 1),
    Sketcher.Constraint("Coincident", 63, 2, 52, 1),
    Sketcher.Constraint("Coincident", 64, 2, 65, 2),
    Sketcher.Constraint("Coincident", 65, 1, 66, 2),
    Sketcher.Constraint("Coincident", 66, 1, 67, 2),
    Sketcher.Constraint("Coincident", 67, 1, 68, 2),
    Sketcher.Constraint("Coincident", 68, 1, 69, 2),
    Sketcher.Constraint("Coincident", 69, 1, 70, 2),
    Sketcher.Constraint("Coincident", 70, 1, 71, 2),
    Sketcher.Constraint("Coincident", 71, 1, 64, 1),
    Sketcher.Constraint("Horizontal", 0),
    Sketcher.Constraint("Horizontal", 2),
    Sketcher.Constraint("Horizontal", 5),
    Sketcher.Constraint("Horizontal", 9),
    Sketcher.Constraint("Horizontal", 11),
    Sketcher.Constraint("Horizontal", 13),
    Sketcher.Constraint("Horizontal", 15),
    Sketcher.Constraint("Vertical", 16),
    Sketcher.Constraint("Horizontal", 26),
    Sketcher.Constraint("Horizontal", 27),
    Sketcher.Constraint("Vertical", 29),
    Sketcher.Constraint("Horizontal", 31),
    Sketcher.Constraint("Horizontal", 35),
    Sketcher.Constraint("Horizontal", 36),
    Sketcher.Constraint("Horizontal", 38),
    Sketcher.Constraint("Horizontal", 42),
    Sketcher.Constraint("Horizontal", 49),
    Sketcher.Constraint("Horizontal", 51),
    Sketcher.Constraint("Horizontal", 52),
    Sketcher.Constraint("Horizontal", 54),
    Sketcher.Constraint("Horizontal", 60),
    Sketcher.Constraint("Horizontal", 62),
    Sketcher.Constraint("Horizontal", 64),
    Sketcher.Constraint("Coincident", 55, 3, 53, 3),
    Sketcher.Constraint("Coincident", 61, 3, 59, 3),
    Sketcher.Constraint("Radius", 28, 0.526402),
    Sketcher.Constraint("Radius", 66, 3.044599),
    Sketcher.Constraint("Radius", 7, 2.047849),
    Sketcher.Constraint("Radius", 18, 1.248861),
    Sketcher.Constraint("Radius", 20, 0.379451),
    Sketcher.Constraint("Radius", 22, 5.345152),
    Sketcher.Constraint("Radius", 30, 0.38796),
    Sketcher.Constraint("Radius", 45, 0.318908),
    Sketcher.Constraint("Radius", 53, 2.031518),
    Sketcher.Constraint("Radius", 55, 0.79957),
    Sketcher.Constraint("Radius", 58, 0.816689),
    Sketcher.Constraint("Radius", 63, 3.032351),
    Sketcher.Constraint("Radius", 69, 1.35518),
    Sketcher.Constraint("Radius", 71, 0.67575),
    Sketcher.Constraint("Radius", 8, 0.637816),
    Sketcher.Constraint("Radius", 14, 1.762377),
    Sketcher.Constraint("Radius", 17, 0.505367),
    Sketcher.Constraint("Radius", 19, 0.565865),
    Sketcher.Constraint("Radius", 21, 0.212605),
    Sketcher.Constraint("Radius", 23, 0.637816),
    Sketcher.Constraint("Radius", 24, 1.392725),
    Sketcher.Constraint("Radius", 41, 1.117202),
    Sketcher.Constraint("Radius", 43, 0.836878),
    Sketcher.Constraint("Radius", 44, 0.457563),
    Sketcher.Constraint("Radius", 47, 1.275632),
    Sketcher.Constraint("Radius", 48, 1.422587),
    Sketcher.Constraint("Radius", 50, 3.079665),
    Sketcher.Constraint("Radius", 56, 1.158583),
    Sketcher.Constraint("Radius", 57, 3.029036),
    Sketcher.Constraint("Radius", 59, 1.411797),
    Sketcher.Constraint("Radius", 61, 2.513597),
    Sketcher.Constraint("Radius", 65, 1.001998),
    Sketcher.Constraint("Radius", 67, 0.811596),
    Sketcher.Constraint("Radius", 68, 1.194275),
    Sketcher.Constraint("Radius", 70, 2.606013),
    Sketcher.Constraint("DistanceX", 11, 1, 11, 2, 2.035421),
    Sketcher.Constraint("DistanceX", 15, 1, 15, 2, 1.110391),
    Sketcher.Constraint("DistanceX", 26, 2, 26, 1, 2.26728),
    Sketcher.Constraint("DistanceX", 27, 1, 27, 2, 0.885391),
    Sketcher.Constraint("DistanceX", 42, 2, 42, 1, 1.122991),
    Sketcher.Constraint("DistanceX", 60, 1, 60, 2, 1.122991),
    Sketcher.Constraint("DistanceX", 64, 2, 64, 1, 0.12417),
    Sketcher.Constraint("DistanceY", 16, 1, 16, 2, 0.277551),
    Sketcher.Constraint("DistanceY", 29, 2, 29, 1, 0.138442),
    Sketcher.Constraint("DistanceX", 28, 3, -1, 1, 22.021102),
    Sketcher.Constraint("DistanceY", -1, 1, 48, 3, 0.993299),
    Sketcher.Constraint("DistanceY", -1, 1, 57, 3, 0.605001),
    Sketcher.Constraint("DistanceY", 71, 3, -1, 1, 0.720001),
    Sketcher.Constraint("DistanceX", 9, 2, -1, 1, 23.113602),
    Sketcher.Constraint("DistanceX", 14, 2, -1, 1, 16.651802),
    Sketcher.Constraint("DistanceX", 19, 1, -1, 1, 13.984698),
    Sketcher.Constraint("DistanceY", -1, 1, 19, 1, 1.273699),
    Sketcher.Constraint("DistanceX", 27, 2, -1, 1, 22.021102),
    Sketcher.Constraint("DistanceX", 36, 2, -1, 1, 18.266101),
    Sketcher.Constraint("DistanceX", 58, 1, -1, 1, 10.073801),
    Sketcher.Constraint("Distance", 1, 4.36346),
    Sketcher.Constraint("Distance", 3, 4.36346),
    Sketcher.Constraint("Distance", 4, 4.870589),
    Sketcher.Constraint("Distance", 6, 0.07843),
    Sketcher.Constraint("Distance", 12, 4.320582),
    Sketcher.Constraint("Distance", 25, 0.158971),
    Sketcher.Constraint("Distance", 39, 0.718611),
    Sketcher.Constraint("Distance", 40, 0.156242),
    Sketcher.Constraint("Distance", 46, 1.163428),
    Sketcher.Constraint("DistanceX", 0, 2, 0, 1, 1.684486),
    Sketcher.Constraint("DistanceX", 5, 2, 5, 1, 1.514875),
    Sketcher.Constraint("DistanceX", 9, 2, 9, 1, 1.410226),
    Sketcher.Constraint("DistanceX", 13, 1, 13, 2, 0.631682),
    Sketcher.Constraint("DistanceX", 31, 2, 31, 1, 0.816724),
    Sketcher.Constraint("DistanceX", 35, 1, 35, 2, 0.565064),
    Sketcher.Constraint("DistanceX", 36, 1, 36, 2, 1.754673),
    Sketcher.Constraint("DistanceX", 38, 2, 38, 1, 1.326414),
    Sketcher.Constraint("DistanceX", 49, 1, 49, 2, 1.473926),
    Sketcher.Constraint("DistanceX", 51, 2, 51, 1, 1.965234),
    Sketcher.Constraint("DistanceX", 52, 2, 52, 1, 1.965234),
    Sketcher.Constraint("DistanceX", 54, 2, 54, 1, 1.263365),
    Sketcher.Constraint("DistanceX", 62, 1, 62, 2, 1.754673),
    Sketcher.Constraint("DistanceX", 7, 3, -1, 1, 22.344691),
    Sketcher.Constraint("DistanceX", 14, 3, -1, 1, 14.932222),
    Sketcher.Constraint("DistanceY", -1, 1, 14, 3, 1.168419),
    Sketcher.Constraint("DistanceY", -1, 1, 17, 3, 1.059942),
    Sketcher.Constraint("DistanceY", -1, 1, 19, 3, 0.992952),
    Sketcher.Constraint("DistanceY", -1, 1, 20, 3, 1.063139),
    Sketcher.Constraint("DistanceY", -1, 1, 21, 3, 1.04525),
    Sketcher.Constraint("DistanceY", 23, 3, -1, 1, 0.238341),
    Sketcher.Constraint("DistanceX", 41, 3, -1, 1, 13.541869),
    Sketcher.Constraint("DistanceY", 43, 3, -1, 1, 0.580772),
    Sketcher.Constraint("DistanceY", 44, 3, -1, 1, 0.937189),
    Sketcher.Constraint("DistanceY", 45, 3, -1, 1, 0.958021),
    Sketcher.Constraint("DistanceX", 47, 3, -1, 1, 13.97641),
    Sketcher.Constraint("DistanceY", -1, 1, 50, 3, 0.49271),
    Sketcher.Constraint("DistanceY", 53, 3, -1, 1, 0.831909),
    Sketcher.Constraint("DistanceX", 56, 3, -1, 1, 9.780148),
    Sketcher.Constraint("DistanceY", -1, 1, 58, 3, 0.875479),
    Sketcher.Constraint("DistanceX", 63, 3, -1, 1, 4.71769),
    Sketcher.Constraint("DistanceY", -1, 1, 63, 3, 0.513109),
    Sketcher.Constraint("DistanceX", 66, 3, -1, 1, 3.480809),
    Sketcher.Constraint("DistanceY", -1, 1, 67, 3, 0.702438),
    Sketcher.Constraint("DistanceX", 68, 3, -1, 1, 5.70024),
    Sketcher.Constraint("DistanceY", -1, 1, 69, 3, 0.178821),
    Sketcher.Constraint("DistanceY", 70, 3, -1, 1, 0.375871),
    Sketcher.Constraint("DistanceX", 0, 2, -1, 1, 25.425168),
    Sketcher.Constraint("DistanceX", 1, 2, -1, 1, 26.267411),
    Sketcher.Constraint("DistanceY", -1, 1, 1, 2, 2.186129),
    Sketcher.Constraint("DistanceX", 4, 2, -1, 1, 19.032209),
    Sketcher.Constraint("DistanceX", 7, 2, -1, 1, 21.413282),
    Sketcher.Constraint("DistanceY", -1, 1, 8, 2, 0.782391),
    Sketcher.Constraint("DistanceY", -1, 1, 10, 2, 2.186129),
    Sketcher.Constraint("DistanceY", -1, 1, 12, 2, 2.186129),
    Sketcher.Constraint("DistanceX", 18, 1, -1, 1, 14.242851),
    Sketcher.Constraint("DistanceX", 21, 1, -1, 1, 14.100929),
    Sketcher.Constraint("DistanceY", -1, 1, 23, 2, 0.215461),
    Sketcher.Constraint("DistanceX", 30, 1, -1, 1, 21.88266),
    Sketcher.Constraint("DistanceY", -1, 1, 36, 2, 2.186129),
    Sketcher.Constraint("DistanceX", 40, 2, -1, 1, 12.751888),
    Sketcher.Constraint("DistanceY", 40, 2, -1, 1, 1.990459),
    Sketcher.Constraint("DistanceX", 41, 2, -1, 1, 12.512461),
    Sketcher.Constraint("DistanceY", 43, 1, -1, 1, 1.367131),
    Sketcher.Constraint("DistanceY", 46, 2, -1, 1, 0.366462),
    Sketcher.Constraint("DistanceX", 48, 2, -1, 1, 13.282829),
    Sketcher.Constraint("DistanceY", -1, 1, 48, 2, 2.186129),
    Sketcher.Constraint("DistanceX", 52, 2, -1, 1, 8.22937),
    Sketcher.Constraint("DistanceY", 55, 1, -1, 1, 1.626469),
    Sketcher.Constraint("DistanceY", 56, 1, -1, 1, 0.998591),
    Sketcher.Constraint("DistanceX", 57, 1, -1, 1, 11.250319),
    Sketcher.Constraint("DistanceX", 59, 1, -1, 1, 9.35236),
    Sketcher.Constraint("DistanceX", 65, 1, -1, 1, 5.95328),
    Sketcher.Constraint("DistanceY", 65, 1, -1, 1, 0.978459),
    Sketcher.Constraint("DistanceY", -1, 1, 66, 1, 0.667639),
    Sketcher.Constraint("DistanceX", 70, 1, -1, 1, 4.350479),
    Sketcher.Constraint("Distance", 10, 1.430643),
    Sketcher.Constraint("Distance", 32, 1.072982),
    Sketcher.Constraint("Distance", 33, 0.841097),
    Sketcher.Constraint("Distance", 34, 0.948168),
    Sketcher.Constraint("Distance", 37, 0.637463),
    Sketcher.Constraint("DistanceY", 7, 3, -1, 1, 1.111175),
    Sketcher.Constraint("DistanceX", 22, 3, -1, 1, 13.257336),
    Sketcher.Constraint("DistanceX", 24, 3, -1, 1, 14.843725),
    Sketcher.Constraint("DistanceY", 28, 3, -1, 1, 0.796815),
    Sketcher.Constraint("DistanceX", 69, 3, -1, 1, 5.793627),
    Sketcher.Constraint("DistanceX", 17, 1, -1, 1, 15.225426),
    Sketcher.Constraint("DistanceX", 20, 1, -1, 1, 13.923104),
    Sketcher.Constraint("DistanceX", 22, 2, -1, 1, 15.661015),
    Sketcher.Constraint("DistanceX", 24, 2, -1, 1, 15.458624),
    Sketcher.Constraint("DistanceY", 28, 1, -1, 1, 0.796815),
    Sketcher.Constraint("DistanceX", 33, 2, -1, 1, 18.617036),
    Sketcher.Constraint("DistanceY", 33, 2, -1, 1, 0.402014),
    Sketcher.Constraint("DistanceX", 44, 1, -1, 1, 15.033656),
    Sketcher.Constraint("DistanceX", 47, 2, -1, 1, 13.268063),
    Sketcher.Constraint("DistanceX", 64, 2, -1, 1, 5.139573),
    Sketcher.Constraint("DistanceX", 67, 1, -1, 1, 5.736186),
    Sketcher.Constraint("DistanceX", 69, 1, -1, 1, 4.578986),
])
pad4 = body.newObject("PartDesign::Pad", "Pad003")
pad4.Profile = sketch4
pad4.Length = Q("0.02 in")
pad4.Reversed = True

doc.recompute()
